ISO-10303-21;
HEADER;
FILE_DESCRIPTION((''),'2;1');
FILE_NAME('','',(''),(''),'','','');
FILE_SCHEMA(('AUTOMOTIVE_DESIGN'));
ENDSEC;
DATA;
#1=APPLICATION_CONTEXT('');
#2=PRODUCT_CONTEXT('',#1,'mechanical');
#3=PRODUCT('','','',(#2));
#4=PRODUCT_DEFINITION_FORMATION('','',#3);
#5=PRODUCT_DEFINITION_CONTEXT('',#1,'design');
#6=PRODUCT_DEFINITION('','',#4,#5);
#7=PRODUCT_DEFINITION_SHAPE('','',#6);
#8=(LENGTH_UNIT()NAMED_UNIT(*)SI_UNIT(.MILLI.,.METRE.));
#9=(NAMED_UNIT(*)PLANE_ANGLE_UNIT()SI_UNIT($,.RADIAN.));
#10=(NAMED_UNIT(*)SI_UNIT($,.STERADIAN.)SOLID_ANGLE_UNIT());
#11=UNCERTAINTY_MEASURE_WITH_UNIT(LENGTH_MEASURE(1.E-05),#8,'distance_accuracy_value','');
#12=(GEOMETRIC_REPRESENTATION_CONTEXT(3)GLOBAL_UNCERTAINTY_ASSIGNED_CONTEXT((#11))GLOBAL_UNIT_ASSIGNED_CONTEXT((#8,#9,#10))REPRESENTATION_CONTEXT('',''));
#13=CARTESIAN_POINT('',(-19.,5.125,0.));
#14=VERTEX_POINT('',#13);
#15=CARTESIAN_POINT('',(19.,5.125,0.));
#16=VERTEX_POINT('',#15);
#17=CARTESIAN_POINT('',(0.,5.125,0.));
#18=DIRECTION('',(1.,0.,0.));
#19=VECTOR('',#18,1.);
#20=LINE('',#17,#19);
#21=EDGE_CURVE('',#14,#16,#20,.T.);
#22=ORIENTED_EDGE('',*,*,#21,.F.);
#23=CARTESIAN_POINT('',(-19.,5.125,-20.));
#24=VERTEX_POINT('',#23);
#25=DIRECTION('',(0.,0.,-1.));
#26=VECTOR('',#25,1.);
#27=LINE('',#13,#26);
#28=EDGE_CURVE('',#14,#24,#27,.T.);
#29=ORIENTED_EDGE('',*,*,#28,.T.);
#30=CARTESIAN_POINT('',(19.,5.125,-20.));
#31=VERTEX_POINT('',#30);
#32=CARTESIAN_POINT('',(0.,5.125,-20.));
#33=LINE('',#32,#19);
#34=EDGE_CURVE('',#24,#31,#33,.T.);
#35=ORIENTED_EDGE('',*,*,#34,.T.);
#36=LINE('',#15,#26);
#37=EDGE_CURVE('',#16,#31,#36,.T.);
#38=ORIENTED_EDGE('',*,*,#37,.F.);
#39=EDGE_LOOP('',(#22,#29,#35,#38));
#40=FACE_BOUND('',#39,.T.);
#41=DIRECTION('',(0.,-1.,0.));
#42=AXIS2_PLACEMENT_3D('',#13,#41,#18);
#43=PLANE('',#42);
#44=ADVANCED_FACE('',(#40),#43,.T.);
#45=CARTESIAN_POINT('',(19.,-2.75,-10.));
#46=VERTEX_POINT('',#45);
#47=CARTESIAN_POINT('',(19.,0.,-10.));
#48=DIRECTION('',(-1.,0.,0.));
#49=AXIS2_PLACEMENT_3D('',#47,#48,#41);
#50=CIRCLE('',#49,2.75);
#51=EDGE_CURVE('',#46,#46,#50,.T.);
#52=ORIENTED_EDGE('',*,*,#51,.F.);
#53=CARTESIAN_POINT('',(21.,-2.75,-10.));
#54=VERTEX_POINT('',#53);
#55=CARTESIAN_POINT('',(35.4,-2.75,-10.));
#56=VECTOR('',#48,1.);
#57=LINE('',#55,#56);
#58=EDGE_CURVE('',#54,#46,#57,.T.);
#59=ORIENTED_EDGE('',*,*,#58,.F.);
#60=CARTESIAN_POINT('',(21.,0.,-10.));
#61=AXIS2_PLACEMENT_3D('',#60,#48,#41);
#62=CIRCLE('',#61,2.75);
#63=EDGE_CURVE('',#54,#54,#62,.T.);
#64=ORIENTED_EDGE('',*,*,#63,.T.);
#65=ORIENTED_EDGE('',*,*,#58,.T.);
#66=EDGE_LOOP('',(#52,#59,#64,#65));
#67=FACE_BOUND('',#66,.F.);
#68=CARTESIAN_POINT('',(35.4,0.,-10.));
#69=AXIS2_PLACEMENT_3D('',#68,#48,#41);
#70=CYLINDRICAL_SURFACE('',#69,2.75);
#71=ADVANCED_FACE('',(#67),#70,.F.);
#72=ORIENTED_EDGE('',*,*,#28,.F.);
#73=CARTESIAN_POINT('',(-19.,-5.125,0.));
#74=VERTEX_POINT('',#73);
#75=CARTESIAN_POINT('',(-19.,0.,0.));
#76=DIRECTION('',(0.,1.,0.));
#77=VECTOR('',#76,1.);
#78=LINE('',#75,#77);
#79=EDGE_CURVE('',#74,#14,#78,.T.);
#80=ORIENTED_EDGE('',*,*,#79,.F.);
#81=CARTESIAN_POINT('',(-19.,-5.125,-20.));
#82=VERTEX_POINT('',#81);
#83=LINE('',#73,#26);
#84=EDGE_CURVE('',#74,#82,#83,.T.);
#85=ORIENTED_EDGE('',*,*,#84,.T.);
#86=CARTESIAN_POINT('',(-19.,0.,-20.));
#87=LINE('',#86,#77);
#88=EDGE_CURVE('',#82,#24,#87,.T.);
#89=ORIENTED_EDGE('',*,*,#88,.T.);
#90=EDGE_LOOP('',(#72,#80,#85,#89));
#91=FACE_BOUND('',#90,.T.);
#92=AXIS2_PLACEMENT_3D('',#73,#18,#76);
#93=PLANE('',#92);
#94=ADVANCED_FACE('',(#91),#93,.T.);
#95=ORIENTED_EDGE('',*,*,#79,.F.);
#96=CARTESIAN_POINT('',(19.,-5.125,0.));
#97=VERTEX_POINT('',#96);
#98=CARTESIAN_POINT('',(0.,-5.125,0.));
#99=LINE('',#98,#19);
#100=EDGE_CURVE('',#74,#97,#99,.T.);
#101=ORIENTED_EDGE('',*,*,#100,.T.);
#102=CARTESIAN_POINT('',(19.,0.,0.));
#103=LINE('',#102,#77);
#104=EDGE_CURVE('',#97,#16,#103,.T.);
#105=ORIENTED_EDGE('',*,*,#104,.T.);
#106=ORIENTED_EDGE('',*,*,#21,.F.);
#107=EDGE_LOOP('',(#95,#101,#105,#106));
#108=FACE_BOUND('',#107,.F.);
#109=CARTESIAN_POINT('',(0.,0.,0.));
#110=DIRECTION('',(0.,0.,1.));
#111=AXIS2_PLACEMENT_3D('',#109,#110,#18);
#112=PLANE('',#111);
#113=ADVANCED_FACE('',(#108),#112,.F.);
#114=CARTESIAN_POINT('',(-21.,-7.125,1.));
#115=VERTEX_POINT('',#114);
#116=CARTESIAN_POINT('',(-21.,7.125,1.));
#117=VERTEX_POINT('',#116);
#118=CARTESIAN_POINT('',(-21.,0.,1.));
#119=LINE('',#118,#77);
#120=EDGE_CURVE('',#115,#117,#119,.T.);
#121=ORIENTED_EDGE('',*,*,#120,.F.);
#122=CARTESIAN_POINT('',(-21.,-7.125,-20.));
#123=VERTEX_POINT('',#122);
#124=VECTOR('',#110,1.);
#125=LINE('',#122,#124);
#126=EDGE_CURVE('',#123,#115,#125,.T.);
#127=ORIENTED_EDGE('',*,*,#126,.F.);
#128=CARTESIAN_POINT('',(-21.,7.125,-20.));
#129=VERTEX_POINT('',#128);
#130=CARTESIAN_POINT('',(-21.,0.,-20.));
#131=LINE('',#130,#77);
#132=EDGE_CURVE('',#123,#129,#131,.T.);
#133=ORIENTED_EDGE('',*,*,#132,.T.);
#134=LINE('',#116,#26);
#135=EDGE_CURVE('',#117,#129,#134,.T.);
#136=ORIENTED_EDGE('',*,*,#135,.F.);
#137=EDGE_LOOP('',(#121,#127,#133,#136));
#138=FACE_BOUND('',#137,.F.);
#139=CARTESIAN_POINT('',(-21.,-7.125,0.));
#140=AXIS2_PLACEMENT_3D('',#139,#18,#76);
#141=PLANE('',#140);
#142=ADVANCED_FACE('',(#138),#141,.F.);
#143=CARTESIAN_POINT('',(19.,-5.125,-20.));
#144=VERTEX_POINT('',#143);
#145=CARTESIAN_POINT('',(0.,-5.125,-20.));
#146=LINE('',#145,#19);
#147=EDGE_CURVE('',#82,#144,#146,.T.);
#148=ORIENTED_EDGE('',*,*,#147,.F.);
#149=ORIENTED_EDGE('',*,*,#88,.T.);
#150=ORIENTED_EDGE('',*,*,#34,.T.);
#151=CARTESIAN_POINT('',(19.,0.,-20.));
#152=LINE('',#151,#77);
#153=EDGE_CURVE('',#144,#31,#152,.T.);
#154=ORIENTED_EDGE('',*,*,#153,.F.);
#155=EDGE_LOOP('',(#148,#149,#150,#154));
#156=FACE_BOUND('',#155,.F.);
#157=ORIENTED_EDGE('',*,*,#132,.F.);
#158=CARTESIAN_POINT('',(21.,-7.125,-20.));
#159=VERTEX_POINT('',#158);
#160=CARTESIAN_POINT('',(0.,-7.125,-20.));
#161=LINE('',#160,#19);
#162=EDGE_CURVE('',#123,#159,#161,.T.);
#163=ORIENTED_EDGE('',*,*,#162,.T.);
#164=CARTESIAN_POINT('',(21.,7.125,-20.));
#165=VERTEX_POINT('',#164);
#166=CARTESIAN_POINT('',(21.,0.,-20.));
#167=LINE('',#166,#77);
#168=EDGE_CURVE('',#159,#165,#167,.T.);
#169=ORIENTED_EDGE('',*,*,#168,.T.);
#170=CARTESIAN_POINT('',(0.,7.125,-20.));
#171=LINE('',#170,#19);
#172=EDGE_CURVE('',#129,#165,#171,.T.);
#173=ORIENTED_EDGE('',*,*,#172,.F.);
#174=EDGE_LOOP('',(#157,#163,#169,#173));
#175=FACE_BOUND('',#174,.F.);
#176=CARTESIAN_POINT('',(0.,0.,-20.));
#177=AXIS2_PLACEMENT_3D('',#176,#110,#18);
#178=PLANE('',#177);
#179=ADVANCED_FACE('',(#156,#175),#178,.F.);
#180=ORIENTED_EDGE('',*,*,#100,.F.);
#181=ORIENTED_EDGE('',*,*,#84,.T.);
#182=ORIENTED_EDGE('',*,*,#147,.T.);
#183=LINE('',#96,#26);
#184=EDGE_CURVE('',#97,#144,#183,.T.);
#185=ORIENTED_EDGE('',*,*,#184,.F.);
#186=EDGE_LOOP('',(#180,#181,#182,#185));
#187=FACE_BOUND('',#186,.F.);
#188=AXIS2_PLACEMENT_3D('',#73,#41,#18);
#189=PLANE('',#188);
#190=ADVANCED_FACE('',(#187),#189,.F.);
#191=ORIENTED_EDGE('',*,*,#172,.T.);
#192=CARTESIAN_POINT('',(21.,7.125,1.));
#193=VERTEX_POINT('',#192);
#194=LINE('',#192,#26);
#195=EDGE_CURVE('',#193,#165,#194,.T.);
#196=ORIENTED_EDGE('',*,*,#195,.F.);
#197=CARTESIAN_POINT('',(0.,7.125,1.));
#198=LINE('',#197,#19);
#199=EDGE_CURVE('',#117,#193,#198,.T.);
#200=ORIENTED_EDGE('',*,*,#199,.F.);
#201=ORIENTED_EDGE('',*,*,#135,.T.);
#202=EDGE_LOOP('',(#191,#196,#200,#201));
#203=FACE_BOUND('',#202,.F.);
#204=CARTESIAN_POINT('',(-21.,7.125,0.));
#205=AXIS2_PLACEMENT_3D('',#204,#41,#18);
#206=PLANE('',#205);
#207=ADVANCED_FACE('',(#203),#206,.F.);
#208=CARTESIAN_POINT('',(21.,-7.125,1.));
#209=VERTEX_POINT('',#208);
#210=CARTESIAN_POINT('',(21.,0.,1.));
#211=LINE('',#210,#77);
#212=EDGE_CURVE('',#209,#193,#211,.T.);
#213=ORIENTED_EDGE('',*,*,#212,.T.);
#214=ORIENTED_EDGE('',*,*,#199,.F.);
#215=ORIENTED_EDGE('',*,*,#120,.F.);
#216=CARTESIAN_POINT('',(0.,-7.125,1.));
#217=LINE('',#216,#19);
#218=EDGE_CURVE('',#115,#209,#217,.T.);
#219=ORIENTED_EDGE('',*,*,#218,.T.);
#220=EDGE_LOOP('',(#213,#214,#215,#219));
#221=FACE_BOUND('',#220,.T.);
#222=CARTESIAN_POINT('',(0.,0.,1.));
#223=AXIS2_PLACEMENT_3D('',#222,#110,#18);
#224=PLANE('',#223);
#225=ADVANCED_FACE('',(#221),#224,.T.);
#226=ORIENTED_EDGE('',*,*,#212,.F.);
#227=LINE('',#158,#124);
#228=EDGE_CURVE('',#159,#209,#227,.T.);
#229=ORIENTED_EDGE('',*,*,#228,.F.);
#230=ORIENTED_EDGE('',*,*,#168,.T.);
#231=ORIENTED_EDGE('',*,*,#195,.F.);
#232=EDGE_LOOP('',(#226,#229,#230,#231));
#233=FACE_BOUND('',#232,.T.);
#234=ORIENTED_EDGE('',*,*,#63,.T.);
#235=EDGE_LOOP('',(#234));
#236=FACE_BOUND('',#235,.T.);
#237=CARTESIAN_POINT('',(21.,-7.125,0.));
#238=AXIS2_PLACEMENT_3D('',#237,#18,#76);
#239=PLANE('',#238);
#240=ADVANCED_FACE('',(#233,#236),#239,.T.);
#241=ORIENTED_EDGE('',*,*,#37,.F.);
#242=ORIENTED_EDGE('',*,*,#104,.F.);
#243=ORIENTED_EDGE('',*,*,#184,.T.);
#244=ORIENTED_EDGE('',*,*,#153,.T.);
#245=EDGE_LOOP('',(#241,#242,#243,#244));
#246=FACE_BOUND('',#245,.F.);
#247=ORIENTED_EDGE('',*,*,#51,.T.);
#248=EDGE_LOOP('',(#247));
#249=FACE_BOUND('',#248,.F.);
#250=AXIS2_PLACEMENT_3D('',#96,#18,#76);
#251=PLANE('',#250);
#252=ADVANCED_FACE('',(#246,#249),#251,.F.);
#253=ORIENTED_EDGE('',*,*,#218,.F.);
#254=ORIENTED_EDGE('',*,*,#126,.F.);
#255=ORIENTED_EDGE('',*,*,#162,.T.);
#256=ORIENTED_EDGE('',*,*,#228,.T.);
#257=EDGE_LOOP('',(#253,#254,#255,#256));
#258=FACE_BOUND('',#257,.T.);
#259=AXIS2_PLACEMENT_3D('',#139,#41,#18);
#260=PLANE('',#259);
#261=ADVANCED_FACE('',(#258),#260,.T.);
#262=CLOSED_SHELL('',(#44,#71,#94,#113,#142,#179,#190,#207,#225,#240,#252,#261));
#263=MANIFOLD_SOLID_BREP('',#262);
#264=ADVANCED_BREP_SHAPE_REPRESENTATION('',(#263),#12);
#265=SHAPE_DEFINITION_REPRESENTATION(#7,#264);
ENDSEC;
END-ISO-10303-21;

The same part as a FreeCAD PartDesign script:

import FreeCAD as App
import Part
import Sketcher

doc = App.newDocument("Part")
body = doc.addObject("PartDesign::Body", "Body")

sketch1 = body.newObject("Sketcher::SketchObject", "Sketch")
sketch1.AttachmentSupport = (doc.getObject("XY_Plane"), [""])
sketch1.MapMode = "FlatFace"
sketch1.addGeometry([
    Part.LineSegment(App.Vector(-21, 7, 0), App.Vector(-21, -7, 0)),
    Part.LineSegment(App.Vector(-21, -7, 0), App.Vector(21, -7, 0)),
    Part.LineSegment(App.Vector(21, -7, 0), App.Vector(21, 7, 0)),
    Part.LineSegment(App.Vector(21, 7, 0), App.Vector(-21, 7, 0)),
], False)
sketch1.addConstraint([
    Sketcher.Constraint("Coincident", 0, 2, 1, 1),
    Sketcher.Constraint("Coincident", 1, 2, 2, 1),
    Sketcher.Constraint("Coincident", 2, 2, 3, 1),
    Sketcher.Constraint("Coincident", 3, 2, 0, 1),
    Sketcher.Constraint("Vertical", 0),
    Sketcher.Constraint("Horizontal", 1),
    Sketcher.Constraint("Vertical", 2),
    Sketcher.Constraint("Horizontal", 3),
    Sketcher.Constraint("Symmetric", 0, 2, 2, 2, -1, 1),
    Sketcher.Constraint("DistanceX", 1, 1, 1, 2, 42.0),
    Sketcher.Constraint("DistanceY", 0, 2, 0, 1, 14.25),
])
pad1 = body.newObject("PartDesign::Pad", "Pad")
pad1.Profile = sketch1
pad1.Length = 1

sketch2 = body.newObject("Sketcher::SketchObject", "Sketch001")
sketch2.AttachmentSupport = (doc.getObject("XY_Plane"), [""])
sketch2.MapMode = "FlatFace"
sketch2.addGeometry([
    Part.LineSegment(App.Vector(-21, 7, 0), App.Vector(-21, -7, 0)),
    Part.LineSegment(App.Vector(-21, -7, 0), App.Vector(21, -7, 0)),
    Part.LineSegment(App.Vector(21, -7, 0), App.Vector(21, 7, 0)),
    Part.LineSegment(App.Vector(21, 7, 0), App.Vector(-21, 7, 0)),
    Part.LineSegment(App.Vector(19, -5, 0), App.Vector(-19, -5, 0)),
    Part.LineSegment(App.Vector(-19, -5, 0), App.Vector(-19, 5, 0)),
    Part.LineSegment(App.Vector(-19, 5, 0), App.Vector(19, 5, 0)),
    Part.LineSegment(App.Vector(19, 5, 0), App.Vector(19, -5, 0)),
], False)
sketch2.addConstraint([
    Sketcher.Constraint("Coincident", 0, 2, 1, 1),
    Sketcher.Constraint("Coincident", 1, 2, 2, 1),
    Sketcher.Constraint("Coincident", 2, 2, 3, 1),
    Sketcher.Constraint("Coincident", 3, 2, 0, 1),
    Sketcher.Constraint("Coincident", 4, 2, 5, 1),
    Sketcher.Constraint("Coincident", 5, 2, 6, 1),
    Sketcher.Constraint("Coincident", 6, 2, 7, 1),
    Sketcher.Constraint("Coincident", 7, 2, 4, 1),
    Sketcher.Constraint("Vertical", 0),
    Sketcher.Constraint("Horizontal", 1),
    Sketcher.Constraint("Vertical", 2),
    Sketcher.Constraint("Horizontal", 3),
    Sketcher.Constraint("Horizontal", 4),
    Sketcher.Constraint("Vertical", 5),
    Sketcher.Constraint("Horizontal", 6),
    Sketcher.Constraint("Vertical", 7),
    Sketcher.Constraint("Symmetric", 0, 2, 2, 2, -1, 1),
    Sketcher.Constraint("Symmetric", 4, 2, 6, 2, -1, 1),
    Sketcher.Constraint("DistanceX", 1, 1, 1, 2, 42.0),
    Sketcher.Constraint("DistanceX", 4, 2, 4, 1, 38.0),
    Sketcher.Constraint("DistanceY", 0, 2, 4, 2, 2.0),
    Sketcher.Constraint("DistanceY", 0, 2, 0, 1, 14.25),
])
pad2 = body.newObject("PartDesign::Pad", "Pad001")
pad2.Profile = sketch2
pad2.Length = 20
pad2.Reversed = True

sketch3 = body.newObject("Sketcher::SketchObject", "Sketch002")
sketch3.AttachmentSupport = (doc.getObject("YZ_Plane"), [""])
sketch3.MapMode = "FlatFace"
sketch3.AttachmentOffset = App.Placement(App.Vector(0, 0, 21), App.Rotation())
sketch3.addGeometry(Part.Circle(App.Vector(0, -10, 0), App.Vector(0, 0, 1), 2.8), False)
sketch3.addConstraint([
    Sketcher.Constraint("PointOnObject", 0, 3, -2),
    Sketcher.Constraint("Diameter", 0, 5.5),
    Sketcher.Constraint("DistanceY", 0, 3, -1, 1, 10.0),
])
doc.recompute()
hole = body.newObject("PartDesign::Hole", "Hole")
hole.Profile = sketch3
hole.ThreadType = "None"
hole.Diameter = 5.5
hole.DepthType = "Dimension"
hole.Depth = 14.4
hole.DrillPoint = "Flat"

doc.recompute()
